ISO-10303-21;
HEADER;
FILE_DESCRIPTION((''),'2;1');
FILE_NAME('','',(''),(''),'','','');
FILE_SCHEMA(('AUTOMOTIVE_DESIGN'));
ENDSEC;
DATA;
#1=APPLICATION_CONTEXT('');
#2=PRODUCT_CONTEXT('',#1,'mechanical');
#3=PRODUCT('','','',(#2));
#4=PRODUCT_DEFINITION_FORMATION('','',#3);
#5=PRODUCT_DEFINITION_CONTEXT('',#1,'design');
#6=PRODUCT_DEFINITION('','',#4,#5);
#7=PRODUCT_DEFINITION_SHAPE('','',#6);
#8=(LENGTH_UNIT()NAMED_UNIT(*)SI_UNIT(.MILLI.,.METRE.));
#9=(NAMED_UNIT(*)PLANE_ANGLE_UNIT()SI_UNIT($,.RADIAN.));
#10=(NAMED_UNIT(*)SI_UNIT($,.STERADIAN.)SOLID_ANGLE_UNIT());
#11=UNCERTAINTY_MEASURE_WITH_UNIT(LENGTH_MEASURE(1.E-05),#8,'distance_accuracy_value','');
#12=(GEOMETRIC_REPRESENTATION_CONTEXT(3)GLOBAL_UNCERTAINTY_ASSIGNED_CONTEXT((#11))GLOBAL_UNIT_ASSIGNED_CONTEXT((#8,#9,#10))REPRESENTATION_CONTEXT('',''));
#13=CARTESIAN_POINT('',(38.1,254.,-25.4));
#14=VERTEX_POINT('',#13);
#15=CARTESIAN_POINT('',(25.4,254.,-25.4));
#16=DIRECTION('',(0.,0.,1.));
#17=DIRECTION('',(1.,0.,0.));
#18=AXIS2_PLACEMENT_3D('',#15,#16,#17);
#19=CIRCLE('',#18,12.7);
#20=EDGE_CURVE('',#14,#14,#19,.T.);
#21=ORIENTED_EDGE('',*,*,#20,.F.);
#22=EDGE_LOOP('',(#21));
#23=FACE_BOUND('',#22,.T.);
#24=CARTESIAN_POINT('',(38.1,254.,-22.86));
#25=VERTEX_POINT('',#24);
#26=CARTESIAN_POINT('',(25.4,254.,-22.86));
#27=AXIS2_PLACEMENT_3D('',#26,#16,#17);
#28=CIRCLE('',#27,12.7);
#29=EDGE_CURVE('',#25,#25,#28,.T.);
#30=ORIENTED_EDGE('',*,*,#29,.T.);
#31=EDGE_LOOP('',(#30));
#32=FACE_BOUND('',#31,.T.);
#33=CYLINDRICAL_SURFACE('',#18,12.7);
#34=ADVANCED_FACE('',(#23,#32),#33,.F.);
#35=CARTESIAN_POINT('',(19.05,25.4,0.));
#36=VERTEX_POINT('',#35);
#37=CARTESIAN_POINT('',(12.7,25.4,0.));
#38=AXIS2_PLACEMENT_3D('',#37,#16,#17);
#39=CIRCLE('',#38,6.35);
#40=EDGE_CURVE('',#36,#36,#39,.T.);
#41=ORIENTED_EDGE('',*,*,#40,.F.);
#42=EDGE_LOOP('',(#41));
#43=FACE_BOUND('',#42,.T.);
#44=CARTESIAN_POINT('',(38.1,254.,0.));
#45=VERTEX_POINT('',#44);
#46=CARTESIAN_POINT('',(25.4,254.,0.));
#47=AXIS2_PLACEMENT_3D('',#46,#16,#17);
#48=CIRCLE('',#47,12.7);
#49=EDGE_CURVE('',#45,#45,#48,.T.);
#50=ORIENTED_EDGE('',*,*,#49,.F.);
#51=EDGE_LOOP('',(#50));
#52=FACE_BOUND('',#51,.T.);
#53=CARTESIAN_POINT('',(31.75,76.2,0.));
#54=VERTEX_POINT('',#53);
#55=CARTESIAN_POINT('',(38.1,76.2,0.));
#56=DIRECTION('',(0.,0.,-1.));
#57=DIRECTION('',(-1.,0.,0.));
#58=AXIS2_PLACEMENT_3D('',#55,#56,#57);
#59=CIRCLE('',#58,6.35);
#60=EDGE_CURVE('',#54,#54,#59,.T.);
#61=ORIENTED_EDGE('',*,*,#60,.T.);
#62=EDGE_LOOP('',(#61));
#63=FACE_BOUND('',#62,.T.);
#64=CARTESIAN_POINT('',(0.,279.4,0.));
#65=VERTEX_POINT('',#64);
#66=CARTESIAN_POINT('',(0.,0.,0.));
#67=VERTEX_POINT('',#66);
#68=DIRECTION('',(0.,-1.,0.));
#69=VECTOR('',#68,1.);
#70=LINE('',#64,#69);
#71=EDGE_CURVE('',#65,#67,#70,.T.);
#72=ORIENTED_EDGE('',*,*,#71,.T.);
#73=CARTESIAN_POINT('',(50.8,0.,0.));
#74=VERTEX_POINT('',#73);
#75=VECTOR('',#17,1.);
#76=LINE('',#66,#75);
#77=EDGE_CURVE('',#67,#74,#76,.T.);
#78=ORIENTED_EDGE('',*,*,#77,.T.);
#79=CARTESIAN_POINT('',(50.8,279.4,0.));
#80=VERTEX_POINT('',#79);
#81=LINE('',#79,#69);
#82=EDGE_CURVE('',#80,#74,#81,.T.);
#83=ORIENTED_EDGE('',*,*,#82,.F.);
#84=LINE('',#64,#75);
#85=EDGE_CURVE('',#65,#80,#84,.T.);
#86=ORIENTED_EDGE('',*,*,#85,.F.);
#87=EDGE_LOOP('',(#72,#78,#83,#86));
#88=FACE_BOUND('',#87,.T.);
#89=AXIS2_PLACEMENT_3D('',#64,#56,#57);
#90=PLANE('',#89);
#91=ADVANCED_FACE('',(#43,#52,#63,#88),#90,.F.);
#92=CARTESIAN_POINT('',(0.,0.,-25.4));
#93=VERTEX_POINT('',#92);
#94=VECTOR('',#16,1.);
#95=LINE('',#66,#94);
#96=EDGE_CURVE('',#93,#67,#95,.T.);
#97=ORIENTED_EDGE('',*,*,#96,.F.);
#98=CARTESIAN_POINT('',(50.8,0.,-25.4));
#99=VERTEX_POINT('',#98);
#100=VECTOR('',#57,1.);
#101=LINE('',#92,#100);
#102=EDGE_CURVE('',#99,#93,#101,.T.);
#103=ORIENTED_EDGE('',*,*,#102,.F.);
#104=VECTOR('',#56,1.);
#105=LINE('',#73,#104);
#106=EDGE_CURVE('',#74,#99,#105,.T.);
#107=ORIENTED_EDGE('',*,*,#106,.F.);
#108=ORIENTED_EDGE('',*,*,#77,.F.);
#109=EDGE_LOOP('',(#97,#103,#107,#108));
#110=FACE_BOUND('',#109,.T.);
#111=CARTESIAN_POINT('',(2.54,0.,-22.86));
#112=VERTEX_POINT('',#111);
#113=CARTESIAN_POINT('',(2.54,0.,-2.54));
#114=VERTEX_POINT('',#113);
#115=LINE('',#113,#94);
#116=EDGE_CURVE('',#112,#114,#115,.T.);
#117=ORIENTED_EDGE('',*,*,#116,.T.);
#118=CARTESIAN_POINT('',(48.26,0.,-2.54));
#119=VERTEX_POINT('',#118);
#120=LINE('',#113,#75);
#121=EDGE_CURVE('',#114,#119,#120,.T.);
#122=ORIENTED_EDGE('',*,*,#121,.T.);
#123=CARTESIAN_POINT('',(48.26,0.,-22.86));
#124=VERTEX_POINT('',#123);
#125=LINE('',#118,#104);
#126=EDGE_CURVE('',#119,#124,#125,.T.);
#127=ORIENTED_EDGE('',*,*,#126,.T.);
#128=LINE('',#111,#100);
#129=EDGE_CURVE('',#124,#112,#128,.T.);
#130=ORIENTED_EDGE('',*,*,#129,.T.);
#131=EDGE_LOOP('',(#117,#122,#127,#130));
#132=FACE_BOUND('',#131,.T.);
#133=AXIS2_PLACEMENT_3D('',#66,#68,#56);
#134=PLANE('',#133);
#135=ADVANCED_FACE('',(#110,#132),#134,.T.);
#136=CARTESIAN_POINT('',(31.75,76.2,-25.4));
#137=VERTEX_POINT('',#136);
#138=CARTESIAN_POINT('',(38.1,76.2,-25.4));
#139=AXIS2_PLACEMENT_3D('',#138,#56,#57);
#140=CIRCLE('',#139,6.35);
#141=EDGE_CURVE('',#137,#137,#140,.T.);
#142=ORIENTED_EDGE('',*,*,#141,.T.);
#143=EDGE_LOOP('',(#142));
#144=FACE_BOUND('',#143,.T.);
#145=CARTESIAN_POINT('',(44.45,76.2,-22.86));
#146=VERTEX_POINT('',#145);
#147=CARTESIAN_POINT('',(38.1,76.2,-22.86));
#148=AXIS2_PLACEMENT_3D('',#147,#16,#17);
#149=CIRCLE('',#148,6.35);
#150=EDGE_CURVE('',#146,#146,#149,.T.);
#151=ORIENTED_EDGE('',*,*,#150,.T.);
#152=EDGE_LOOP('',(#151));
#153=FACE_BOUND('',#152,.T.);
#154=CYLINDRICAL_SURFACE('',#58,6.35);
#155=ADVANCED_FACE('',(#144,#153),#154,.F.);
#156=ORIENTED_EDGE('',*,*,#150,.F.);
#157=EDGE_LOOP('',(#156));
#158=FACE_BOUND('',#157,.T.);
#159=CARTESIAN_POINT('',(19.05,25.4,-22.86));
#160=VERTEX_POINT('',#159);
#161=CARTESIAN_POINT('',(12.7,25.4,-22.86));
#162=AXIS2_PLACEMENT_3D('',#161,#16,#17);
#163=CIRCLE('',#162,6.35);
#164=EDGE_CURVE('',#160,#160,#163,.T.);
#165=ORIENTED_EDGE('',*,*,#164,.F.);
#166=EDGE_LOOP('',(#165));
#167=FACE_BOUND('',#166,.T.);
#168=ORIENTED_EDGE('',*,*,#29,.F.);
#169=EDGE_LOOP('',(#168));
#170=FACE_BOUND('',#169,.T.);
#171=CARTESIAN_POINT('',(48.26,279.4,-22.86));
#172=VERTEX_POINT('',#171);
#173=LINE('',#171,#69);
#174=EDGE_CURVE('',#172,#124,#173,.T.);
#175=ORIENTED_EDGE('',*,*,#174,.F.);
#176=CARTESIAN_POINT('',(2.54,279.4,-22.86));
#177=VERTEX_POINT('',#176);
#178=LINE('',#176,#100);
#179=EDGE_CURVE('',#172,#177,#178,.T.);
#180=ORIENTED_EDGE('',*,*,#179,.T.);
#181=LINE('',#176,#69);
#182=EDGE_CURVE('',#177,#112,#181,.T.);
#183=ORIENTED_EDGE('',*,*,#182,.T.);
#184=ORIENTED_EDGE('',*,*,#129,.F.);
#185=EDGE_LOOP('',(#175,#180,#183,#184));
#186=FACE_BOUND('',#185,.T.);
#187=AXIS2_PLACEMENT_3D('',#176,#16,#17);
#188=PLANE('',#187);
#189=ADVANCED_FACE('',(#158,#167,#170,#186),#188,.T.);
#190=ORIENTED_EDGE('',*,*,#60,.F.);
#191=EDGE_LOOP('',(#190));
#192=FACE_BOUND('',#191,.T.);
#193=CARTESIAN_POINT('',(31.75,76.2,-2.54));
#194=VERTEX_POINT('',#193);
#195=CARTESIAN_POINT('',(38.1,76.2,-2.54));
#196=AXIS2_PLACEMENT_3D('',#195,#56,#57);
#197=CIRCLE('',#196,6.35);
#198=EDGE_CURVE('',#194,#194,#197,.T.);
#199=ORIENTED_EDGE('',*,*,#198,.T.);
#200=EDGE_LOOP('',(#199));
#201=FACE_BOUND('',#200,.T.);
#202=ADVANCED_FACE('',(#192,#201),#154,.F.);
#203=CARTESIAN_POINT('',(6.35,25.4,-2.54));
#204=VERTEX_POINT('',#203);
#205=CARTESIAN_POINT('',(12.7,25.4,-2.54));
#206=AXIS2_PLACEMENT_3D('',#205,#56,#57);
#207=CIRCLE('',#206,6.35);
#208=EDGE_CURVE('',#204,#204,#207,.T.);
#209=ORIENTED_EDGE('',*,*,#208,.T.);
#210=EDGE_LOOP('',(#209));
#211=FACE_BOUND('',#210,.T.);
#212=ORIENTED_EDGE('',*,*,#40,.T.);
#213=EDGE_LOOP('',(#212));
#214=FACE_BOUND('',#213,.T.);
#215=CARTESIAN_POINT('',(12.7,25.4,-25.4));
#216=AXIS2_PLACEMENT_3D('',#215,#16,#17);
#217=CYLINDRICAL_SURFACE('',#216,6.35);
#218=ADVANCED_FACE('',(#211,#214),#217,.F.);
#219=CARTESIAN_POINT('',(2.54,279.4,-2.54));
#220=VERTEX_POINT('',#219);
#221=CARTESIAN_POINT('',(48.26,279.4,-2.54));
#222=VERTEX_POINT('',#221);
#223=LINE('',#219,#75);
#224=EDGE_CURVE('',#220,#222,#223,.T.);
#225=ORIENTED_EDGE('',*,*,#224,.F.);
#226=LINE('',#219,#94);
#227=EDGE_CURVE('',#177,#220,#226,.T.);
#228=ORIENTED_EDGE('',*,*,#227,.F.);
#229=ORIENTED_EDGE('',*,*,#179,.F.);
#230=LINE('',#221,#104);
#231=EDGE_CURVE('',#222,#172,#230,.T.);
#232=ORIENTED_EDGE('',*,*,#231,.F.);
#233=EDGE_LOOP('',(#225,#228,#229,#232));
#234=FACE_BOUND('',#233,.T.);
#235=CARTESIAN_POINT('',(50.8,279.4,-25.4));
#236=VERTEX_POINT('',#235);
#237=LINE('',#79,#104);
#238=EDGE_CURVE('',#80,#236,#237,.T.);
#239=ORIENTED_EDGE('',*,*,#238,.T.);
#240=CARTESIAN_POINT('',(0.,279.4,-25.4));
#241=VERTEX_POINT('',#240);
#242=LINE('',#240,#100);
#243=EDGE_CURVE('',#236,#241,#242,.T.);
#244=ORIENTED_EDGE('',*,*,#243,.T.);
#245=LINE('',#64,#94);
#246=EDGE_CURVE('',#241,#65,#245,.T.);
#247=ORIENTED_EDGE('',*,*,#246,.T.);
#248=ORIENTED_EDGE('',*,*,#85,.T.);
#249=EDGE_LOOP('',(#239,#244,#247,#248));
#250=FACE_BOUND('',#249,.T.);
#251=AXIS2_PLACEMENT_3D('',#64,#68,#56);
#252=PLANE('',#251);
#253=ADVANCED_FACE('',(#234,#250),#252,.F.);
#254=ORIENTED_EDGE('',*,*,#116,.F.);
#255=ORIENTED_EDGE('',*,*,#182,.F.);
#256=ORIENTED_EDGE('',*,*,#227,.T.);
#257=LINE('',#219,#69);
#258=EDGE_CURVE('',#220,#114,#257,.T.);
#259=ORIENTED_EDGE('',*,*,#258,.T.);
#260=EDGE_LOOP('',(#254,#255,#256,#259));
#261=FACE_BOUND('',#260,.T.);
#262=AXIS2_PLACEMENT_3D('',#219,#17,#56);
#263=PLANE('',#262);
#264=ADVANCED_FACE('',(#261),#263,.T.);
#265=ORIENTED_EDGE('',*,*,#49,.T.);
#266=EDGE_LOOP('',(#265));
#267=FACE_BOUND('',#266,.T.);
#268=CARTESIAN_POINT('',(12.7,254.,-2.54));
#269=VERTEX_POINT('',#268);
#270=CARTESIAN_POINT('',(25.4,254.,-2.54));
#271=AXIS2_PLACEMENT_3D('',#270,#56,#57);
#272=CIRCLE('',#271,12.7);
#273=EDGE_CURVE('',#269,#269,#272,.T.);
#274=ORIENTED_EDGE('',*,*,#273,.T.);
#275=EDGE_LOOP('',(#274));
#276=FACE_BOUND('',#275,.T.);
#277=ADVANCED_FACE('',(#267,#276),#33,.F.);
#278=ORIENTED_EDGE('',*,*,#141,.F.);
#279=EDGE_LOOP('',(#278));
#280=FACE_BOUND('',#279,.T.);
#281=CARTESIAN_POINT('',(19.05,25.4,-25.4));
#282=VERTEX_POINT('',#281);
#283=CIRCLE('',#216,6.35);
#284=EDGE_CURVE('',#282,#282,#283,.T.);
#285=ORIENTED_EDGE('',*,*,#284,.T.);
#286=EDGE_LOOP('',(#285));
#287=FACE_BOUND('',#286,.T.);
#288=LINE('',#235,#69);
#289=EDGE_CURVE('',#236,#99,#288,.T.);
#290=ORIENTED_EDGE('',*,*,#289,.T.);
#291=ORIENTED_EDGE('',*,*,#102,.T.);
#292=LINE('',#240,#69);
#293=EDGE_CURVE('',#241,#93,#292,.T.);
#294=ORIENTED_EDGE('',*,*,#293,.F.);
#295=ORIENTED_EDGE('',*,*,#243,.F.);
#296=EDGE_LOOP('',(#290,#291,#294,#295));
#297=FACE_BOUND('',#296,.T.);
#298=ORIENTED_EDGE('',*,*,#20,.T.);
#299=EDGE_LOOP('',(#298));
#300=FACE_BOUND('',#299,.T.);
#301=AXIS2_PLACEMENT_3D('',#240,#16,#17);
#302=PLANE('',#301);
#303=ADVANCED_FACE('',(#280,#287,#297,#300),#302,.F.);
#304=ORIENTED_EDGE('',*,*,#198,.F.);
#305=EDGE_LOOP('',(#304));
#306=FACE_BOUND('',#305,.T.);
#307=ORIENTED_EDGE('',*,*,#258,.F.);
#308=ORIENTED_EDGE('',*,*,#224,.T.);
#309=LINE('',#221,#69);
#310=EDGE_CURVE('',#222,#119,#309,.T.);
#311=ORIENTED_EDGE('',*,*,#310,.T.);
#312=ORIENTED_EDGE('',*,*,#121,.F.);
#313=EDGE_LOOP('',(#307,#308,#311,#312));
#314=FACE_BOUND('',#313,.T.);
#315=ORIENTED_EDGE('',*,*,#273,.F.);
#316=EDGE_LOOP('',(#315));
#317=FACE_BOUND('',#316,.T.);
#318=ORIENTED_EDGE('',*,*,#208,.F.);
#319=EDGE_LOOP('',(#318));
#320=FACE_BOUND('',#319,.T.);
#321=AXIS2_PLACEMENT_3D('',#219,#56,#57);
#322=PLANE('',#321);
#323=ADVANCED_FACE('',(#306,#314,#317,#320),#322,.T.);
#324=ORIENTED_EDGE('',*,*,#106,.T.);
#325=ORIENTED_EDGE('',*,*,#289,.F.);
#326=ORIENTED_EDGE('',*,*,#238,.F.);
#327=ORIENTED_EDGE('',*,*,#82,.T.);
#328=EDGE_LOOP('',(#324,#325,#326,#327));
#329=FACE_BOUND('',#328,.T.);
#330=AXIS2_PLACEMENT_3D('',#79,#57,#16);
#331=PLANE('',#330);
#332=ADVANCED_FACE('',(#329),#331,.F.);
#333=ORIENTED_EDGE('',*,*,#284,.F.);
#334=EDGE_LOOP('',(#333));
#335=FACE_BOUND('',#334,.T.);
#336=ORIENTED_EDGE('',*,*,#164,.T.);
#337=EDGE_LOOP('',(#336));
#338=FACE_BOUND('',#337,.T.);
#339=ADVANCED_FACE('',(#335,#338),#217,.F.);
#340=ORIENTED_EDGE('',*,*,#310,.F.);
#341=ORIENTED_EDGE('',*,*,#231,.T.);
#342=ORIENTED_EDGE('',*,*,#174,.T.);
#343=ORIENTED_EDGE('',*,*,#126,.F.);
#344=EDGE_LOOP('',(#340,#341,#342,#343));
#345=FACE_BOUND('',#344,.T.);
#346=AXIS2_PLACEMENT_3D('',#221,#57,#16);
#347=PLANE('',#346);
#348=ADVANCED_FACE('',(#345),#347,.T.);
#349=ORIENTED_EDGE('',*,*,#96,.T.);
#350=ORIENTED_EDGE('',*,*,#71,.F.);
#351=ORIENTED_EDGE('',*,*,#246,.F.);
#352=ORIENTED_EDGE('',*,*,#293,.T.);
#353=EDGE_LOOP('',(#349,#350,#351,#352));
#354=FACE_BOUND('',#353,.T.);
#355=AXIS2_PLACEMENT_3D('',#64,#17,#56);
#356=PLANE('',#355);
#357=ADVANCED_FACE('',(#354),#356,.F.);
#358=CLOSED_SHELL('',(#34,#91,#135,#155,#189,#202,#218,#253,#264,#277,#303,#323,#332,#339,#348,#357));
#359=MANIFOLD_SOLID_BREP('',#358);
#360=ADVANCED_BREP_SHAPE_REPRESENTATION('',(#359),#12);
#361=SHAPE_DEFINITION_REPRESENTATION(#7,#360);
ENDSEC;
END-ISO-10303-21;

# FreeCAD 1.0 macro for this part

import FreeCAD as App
import Part
import Sketcher

V = App.Vector
Q = App.Units.Quantity

doc = App.newDocument("Part")
params = doc.addObject("Spreadsheet::Sheet", "Params")
for row, (alias, value) in enumerate([
    ("sketch1_width", "2 in"),
    ("sketch1_height", "1 in"),
    ("sketch1_width2", "1.8 in"),
    ("sketch1_height2", "0.8 in"),
    ("pad1_length", "11 in"),
    ("sketch2_diameter", "1 in"),
    ("sketch2_diameter2", "0.5 in"),
    ("sketch3_diameter", "0.5 in"),
], start=1):
    params.set(f"A{row}", alias)
    params.set(f"B{row}", "=" + value)
    params.setAlias(f"B{row}", alias)

body = doc.addObject("PartDesign::Body", "Body")

sketch1 = body.newObject("Sketcher::SketchObject", "Sketch")
sketch1.AttachmentSupport = (doc.getObject("XZ_Plane"), [""])
sketch1.MapMode = "FlatFace"
sketch1.addGeometry([
    Part.LineSegment(V(0, -25.4, 0), V(0, 0, 0)),
    Part.LineSegment(V(0, 0, 0), V(50.8, 0, 0)),
    Part.LineSegment(V(50.8, 0, 0), V(50.8, -25.4, 0)),
    Part.LineSegment(V(50.8, -25.4, 0), V(0, -25.4, 0)),
    Part.LineSegment(V(48.26, -2.54, 0), V(2.54, -2.54, 0)),
    Part.LineSegment(V(2.54, -2.54, 0), V(2.54, -22.86, 0)),
    Part.LineSegment(V(2.54, -22.86, 0), V(48.26, -22.86, 0)),
    Part.LineSegment(V(48.26, -22.86, 0), V(48.26, -2.54, 0)),
], False)
sketch1.addConstraint([
    Sketcher.Constraint("Coincident", 0, 2, 1, 1),
    Sketcher.Constraint("Coincident", 1, 2, 2, 1),
    Sketcher.Constraint("Coincident", 2, 2, 3, 1),
    Sketcher.Constraint("Coincident", 3, 2, 0, 1),
    Sketcher.Constraint("Coincident", 4, 2, 5, 1),
    Sketcher.Constraint("Coincident", 5, 2, 6, 1),
    Sketcher.Constraint("Coincident", 6, 2, 7, 1),
    Sketcher.Constraint("Coincident", 7, 2, 4, 1),
    Sketcher.Constraint("Vertical", 0),
    Sketcher.Constraint("Horizontal", 1),
    Sketcher.Constraint("Vertical", 2),
    Sketcher.Constraint("Horizontal", 3),
    Sketcher.Constraint("Horizontal", 4),
    Sketcher.Constraint("Vertical", 5),
    Sketcher.Constraint("Horizontal", 6),
    Sketcher.Constraint("Vertical", 7),
    Sketcher.Constraint("Coincident", 0, 2, -1, 1),
    Sketcher.Constraint("DistanceX", 1, 1, 1, 2, Q("2 in")),
    Sketcher.Constraint("DistanceY", 0, 1, 0, 2, Q("1 in")),
    Sketcher.Constraint("DistanceX", 4, 2, 4, 1, Q("1.8 in")),
    Sketcher.Constraint("DistanceY", 5, 2, 5, 1, Q("0.8 in")),
    Sketcher.Constraint("DistanceX", -1, 1, 4, 2, Q("0.1 in")),
    Sketcher.Constraint("DistanceY", 4, 2, -1, 1, Q("0.1 in")),
])
sketch1.setExpression("Constraints[17]", "Params.sketch1_width")
sketch1.setExpression("Constraints[18]", "Params.sketch1_height")
sketch1.setExpression("Constraints[19]", "Params.sketch1_width2")
sketch1.setExpression("Constraints[20]", "Params.sketch1_height2")
pad1 = body.newObject("PartDesign::Pad", "Pad")
pad1.Profile = sketch1
pad1.setExpression("Length", "Params.pad1_length")
pad1.Reversed = True

sketch2 = body.newObject("Sketcher::SketchObject", "Sketch001")
sketch2.AttachmentSupport = (doc.getObject("XY_Plane"), [""])
sketch2.MapMode = "FlatFace"
sketch2.addGeometry([
    Part.Circle(V(12.7, 25.4, 0), V(0, 0, 1), 6.35),
    Part.Circle(V(25.4, 254, 0), V(0, 0, 1), 12.7),
], False)
sketch2.addConstraint([
    Sketcher.Constraint("Diameter", 1, Q("1 in")),
    Sketcher.Constraint("Diameter", 0, Q("0.5 in")),
    Sketcher.Constraint("DistanceY", -1, 1, 0, 3, Q("1 in")),
    Sketcher.Constraint("DistanceX", -1, 1, 1, 3, Q("1 in")),
    Sketcher.Constraint("DistanceY", -1, 1, 1, 3, Q("10 in")),
    Sketcher.Constraint("DistanceX", -1, 1, 0, 3, Q("0.5 in")),
])
sketch2.setExpression("Constraints[0]", "Params.sketch2_diameter")
sketch2.setExpression("Constraints[1]", "Params.sketch2_diameter2")
pocket1 = body.newObject("PartDesign::Pocket", "Pocket")
pocket1.Profile = sketch2
pocket1.Type = "ThroughAll"

sketch3 = body.newObject("Sketcher::SketchObject", "Sketch002")
sketch3.AttachmentSupport = (doc.getObject("XY_Plane"), [""])
sketch3.MapMode = "FlatFace"
sketch3.AttachmentOffset = App.Placement(V(0, 0, -1 * 25.4), App.Rotation())
sketch3.addGeometry(Part.Circle(V(38.1, 76.2, 0), V(0, 0, 1), 6.35), False)
sketch3.addConstraint([
    Sketcher.Constraint("Diameter", 0, Q("0.5 in")),
    Sketcher.Constraint("DistanceY", -1, 1, 0, 3, Q("3 in")),
    Sketcher.Constraint("DistanceX", -1, 1, 0, 3, Q("1.5 in")),
])
sketch3.setExpression("Constraints[0]", "Params.sketch3_diameter")
pocket2 = body.newObject("PartDesign::Pocket", "Pocket001")
pocket2.Profile = sketch3
pocket2.Type = "ThroughAll"
pocket2.Reversed = True

doc.recompute()
